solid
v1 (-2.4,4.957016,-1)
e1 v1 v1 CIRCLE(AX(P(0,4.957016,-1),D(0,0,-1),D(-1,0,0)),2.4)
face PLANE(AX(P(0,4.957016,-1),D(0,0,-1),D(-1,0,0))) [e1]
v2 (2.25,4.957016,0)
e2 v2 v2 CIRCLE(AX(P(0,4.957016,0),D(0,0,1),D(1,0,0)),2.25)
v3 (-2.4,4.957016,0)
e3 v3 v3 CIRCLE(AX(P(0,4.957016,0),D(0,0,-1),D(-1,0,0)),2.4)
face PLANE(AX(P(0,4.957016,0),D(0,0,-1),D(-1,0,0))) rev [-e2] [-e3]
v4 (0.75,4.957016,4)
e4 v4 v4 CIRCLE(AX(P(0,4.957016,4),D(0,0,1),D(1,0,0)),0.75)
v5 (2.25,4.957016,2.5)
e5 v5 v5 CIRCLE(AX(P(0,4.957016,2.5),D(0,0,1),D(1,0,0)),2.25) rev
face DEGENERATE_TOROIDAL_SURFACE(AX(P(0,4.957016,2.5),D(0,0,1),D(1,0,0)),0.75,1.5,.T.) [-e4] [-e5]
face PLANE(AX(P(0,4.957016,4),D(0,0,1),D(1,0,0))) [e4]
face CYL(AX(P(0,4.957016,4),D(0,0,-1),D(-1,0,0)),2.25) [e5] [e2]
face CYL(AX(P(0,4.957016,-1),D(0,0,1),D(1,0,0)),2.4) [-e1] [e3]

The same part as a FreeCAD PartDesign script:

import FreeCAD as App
import Part
import Sketcher

V = App.Vector
Q = App.Units.Quantity


def edges_at(feature, points):
    """Names of the edges that pass closest to the given points."""
    edges = feature.Shape.Edges
    near = lambda p: min(range(len(edges)), key=lambda i: edges[i].distToShape(Part.Vertex(*p))[0])
    return sorted({f"Edge{near(p) + 1}" for p in points})

doc = App.newDocument("Part")
body = doc.addObject("PartDesign::Body", "Body")

# Sketch on XY plane
sketch1 = doc.addObject("Sketcher::SketchObject", "Sketch")
body.addObject(sketch1)
sketch1.AttachmentSupport = (doc.XY_Plane, [""])
sketch1.MapMode = "FlatFace"
sketch1.addGeometry(Part.Circle(V(0, 5, 0), V(0, 0, 1), 2.2), False)
sketch1.addConstraint([
    Sketcher.Constraint("PointOnObject", 0, 3, -2),
    Sketcher.Constraint("Diameter", 0, Q("4.5 mm")),
    Sketcher.Constraint("DistanceY", -1, 1, 0, 3, Q("4.957016 mm")),
])
pad1 = doc.addObject("PartDesign::Pad", "Pad")
body.addObject(pad1)
pad1.Profile = sketch1
pad1.Length = 4

# Sketch on XY plane
sketch2 = doc.addObject("Sketcher::SketchObject", "Sketch001")
body.addObject(sketch2)
sketch2.AttachmentSupport = (doc.XY_Plane, [""])
sketch2.MapMode = "FlatFace"
sketch2.addGeometry(Part.Circle(V(0, 5, 0), V(0, 0, 1), 2.4), False)
sketch2.addConstraint([
    Sketcher.Constraint("PointOnObject", 0, 3, -2),
    Sketcher.Constraint("Diameter", 0, Q("4.8 mm")),
    Sketcher.Constraint("DistanceY", -1, 1, 0, 3, Q("4.957016 mm")),
])
pad2 = doc.addObject("PartDesign::Pad", "Pad001")
body.addObject(pad2)
pad2.Profile = sketch2
pad2.Length = 1
pad2.Reversed = True
doc.recompute()

fillet = doc.addObject("PartDesign::Fillet", "Fillet")
body.addObject(fillet)
fillet.Base = (pad2, edges_at(pad2, [(-2.25, 4.957, 4)]))
fillet.Radius = 1.5

doc.recompute()
